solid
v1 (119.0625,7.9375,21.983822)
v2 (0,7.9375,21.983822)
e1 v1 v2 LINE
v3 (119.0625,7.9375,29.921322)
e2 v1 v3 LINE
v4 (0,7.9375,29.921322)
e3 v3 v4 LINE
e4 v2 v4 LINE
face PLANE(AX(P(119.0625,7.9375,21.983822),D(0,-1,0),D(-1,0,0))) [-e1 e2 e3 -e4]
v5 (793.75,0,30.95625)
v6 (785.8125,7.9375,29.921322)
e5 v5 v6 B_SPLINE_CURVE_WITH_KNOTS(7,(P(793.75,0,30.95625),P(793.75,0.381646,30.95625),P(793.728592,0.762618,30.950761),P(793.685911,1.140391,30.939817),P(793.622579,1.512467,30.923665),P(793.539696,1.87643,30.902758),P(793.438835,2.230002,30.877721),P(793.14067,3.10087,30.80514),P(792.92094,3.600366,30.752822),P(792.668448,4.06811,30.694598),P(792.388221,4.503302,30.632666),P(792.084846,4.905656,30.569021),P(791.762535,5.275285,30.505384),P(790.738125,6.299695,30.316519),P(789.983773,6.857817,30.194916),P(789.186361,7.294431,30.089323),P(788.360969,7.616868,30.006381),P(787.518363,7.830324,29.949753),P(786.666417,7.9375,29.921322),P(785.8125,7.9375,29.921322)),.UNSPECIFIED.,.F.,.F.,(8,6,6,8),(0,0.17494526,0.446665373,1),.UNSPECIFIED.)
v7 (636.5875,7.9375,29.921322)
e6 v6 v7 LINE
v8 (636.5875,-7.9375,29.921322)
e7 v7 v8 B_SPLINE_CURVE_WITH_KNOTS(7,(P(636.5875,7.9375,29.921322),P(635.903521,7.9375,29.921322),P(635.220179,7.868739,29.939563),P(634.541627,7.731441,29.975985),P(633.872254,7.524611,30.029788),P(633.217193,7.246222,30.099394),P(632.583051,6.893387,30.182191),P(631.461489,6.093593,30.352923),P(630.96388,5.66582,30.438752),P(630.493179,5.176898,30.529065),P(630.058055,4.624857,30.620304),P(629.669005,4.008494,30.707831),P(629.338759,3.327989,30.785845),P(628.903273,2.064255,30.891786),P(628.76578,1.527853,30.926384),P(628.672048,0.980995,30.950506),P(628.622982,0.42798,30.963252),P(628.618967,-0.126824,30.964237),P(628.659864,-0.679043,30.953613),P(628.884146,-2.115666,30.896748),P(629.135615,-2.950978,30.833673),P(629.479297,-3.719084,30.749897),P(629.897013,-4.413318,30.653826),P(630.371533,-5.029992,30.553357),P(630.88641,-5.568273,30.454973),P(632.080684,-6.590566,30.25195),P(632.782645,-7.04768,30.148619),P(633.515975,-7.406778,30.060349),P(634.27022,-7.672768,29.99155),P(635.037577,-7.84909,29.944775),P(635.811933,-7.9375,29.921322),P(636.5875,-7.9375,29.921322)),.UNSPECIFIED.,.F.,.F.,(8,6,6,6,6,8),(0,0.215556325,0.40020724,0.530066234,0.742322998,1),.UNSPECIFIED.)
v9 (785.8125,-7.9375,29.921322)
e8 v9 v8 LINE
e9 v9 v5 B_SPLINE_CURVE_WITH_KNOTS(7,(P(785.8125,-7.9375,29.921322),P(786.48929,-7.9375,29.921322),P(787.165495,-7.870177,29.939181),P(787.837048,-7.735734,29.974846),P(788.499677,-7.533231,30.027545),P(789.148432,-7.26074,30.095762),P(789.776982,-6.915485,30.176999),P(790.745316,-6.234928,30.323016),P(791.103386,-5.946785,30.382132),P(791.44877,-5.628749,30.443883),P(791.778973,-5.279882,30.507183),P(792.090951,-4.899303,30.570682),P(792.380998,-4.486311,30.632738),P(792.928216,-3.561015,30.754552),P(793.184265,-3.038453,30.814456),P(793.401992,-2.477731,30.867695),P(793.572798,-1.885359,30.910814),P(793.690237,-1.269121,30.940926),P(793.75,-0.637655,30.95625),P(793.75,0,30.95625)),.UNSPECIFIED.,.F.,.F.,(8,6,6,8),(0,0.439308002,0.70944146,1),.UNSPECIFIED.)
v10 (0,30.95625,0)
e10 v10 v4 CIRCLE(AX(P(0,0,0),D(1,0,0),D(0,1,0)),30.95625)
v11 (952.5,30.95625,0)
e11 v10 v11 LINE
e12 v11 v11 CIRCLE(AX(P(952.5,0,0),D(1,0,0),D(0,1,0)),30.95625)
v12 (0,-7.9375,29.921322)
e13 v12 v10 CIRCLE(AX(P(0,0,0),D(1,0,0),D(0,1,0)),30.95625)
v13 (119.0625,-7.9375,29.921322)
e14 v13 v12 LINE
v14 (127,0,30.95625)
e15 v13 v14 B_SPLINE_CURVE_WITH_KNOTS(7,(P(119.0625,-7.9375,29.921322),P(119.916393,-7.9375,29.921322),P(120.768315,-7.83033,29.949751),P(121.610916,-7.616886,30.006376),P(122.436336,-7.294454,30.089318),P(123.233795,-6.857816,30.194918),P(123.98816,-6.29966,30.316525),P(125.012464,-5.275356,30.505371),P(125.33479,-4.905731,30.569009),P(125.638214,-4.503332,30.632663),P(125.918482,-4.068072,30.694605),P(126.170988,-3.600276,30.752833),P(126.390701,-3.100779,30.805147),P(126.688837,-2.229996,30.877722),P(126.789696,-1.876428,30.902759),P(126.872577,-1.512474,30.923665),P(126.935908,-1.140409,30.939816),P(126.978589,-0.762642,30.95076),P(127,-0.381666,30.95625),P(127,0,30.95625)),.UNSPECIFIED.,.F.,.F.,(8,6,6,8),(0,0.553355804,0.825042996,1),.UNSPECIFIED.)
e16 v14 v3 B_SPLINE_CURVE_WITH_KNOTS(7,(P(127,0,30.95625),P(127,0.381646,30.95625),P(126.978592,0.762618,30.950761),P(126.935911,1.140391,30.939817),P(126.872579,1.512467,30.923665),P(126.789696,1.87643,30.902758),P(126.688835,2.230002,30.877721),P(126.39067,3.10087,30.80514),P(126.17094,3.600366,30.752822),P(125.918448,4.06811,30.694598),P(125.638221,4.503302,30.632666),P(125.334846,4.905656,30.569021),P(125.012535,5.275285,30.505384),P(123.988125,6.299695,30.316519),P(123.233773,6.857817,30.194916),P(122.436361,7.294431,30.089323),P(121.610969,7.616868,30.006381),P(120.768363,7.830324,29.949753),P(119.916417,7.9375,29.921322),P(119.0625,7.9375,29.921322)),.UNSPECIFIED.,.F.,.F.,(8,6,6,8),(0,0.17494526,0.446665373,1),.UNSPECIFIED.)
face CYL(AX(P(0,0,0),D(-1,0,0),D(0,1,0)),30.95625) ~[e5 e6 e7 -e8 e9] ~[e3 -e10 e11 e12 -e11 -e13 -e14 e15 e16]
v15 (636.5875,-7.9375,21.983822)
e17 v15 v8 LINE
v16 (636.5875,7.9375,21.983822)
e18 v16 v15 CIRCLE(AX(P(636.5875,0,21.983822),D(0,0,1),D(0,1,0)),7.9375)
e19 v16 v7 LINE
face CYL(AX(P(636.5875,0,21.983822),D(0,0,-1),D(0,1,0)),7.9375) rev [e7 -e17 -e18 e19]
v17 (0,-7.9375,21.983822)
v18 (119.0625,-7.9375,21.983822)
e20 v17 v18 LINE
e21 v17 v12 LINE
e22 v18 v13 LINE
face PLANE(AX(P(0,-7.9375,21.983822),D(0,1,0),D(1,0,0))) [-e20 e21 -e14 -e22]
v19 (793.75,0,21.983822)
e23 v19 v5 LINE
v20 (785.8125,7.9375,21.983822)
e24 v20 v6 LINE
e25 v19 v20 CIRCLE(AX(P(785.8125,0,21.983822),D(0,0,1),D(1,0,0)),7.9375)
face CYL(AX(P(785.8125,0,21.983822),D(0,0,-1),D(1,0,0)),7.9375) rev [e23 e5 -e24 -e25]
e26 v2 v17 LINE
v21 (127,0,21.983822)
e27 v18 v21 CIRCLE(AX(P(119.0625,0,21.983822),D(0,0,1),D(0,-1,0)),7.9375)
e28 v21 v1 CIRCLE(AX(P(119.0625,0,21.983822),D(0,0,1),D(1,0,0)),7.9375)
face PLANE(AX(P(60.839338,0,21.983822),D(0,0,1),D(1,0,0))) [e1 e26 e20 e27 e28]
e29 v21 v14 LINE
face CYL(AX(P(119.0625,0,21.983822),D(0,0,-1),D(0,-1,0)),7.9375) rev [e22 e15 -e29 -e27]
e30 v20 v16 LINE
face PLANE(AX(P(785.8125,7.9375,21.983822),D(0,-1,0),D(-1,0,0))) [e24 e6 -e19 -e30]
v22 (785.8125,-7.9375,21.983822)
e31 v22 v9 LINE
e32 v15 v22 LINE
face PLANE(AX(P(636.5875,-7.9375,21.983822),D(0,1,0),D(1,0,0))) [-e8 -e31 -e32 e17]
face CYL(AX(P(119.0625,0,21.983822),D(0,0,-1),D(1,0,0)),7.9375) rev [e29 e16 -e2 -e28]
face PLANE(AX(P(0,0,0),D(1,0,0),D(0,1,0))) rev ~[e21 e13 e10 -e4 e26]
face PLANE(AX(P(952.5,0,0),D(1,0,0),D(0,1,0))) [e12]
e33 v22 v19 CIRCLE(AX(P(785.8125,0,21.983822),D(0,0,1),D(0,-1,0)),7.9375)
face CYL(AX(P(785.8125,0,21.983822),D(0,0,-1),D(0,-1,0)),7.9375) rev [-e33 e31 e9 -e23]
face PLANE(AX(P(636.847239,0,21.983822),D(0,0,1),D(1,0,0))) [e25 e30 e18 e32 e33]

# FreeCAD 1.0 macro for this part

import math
import FreeCAD as App
import Part
import Sketcher
Q = App.Units.Quantity

doc = App.newDocument("Part")
body = doc.addObject("PartDesign::Body", "Body")

sketch1 = body.newObject("Sketcher::SketchObject", "Sketch")
sketch1.AttachmentSupport = (doc.getObject("YZ_Plane"), [""])
sketch1.MapMode = "FlatFace"
sketch1.addGeometry(Part.Circle(App.Vector(0, 0, 0), App.Vector(0, 0, 1), 30.95625), False)
sketch1.addConstraint([
    Sketcher.Constraint("Coincident", 0, 3, -1, 1),
    Sketcher.Constraint("Diameter", 0, Q("2.4375 in")),
])
pad1 = body.newObject("PartDesign::Pad", "Pad")
pad1.Profile = sketch1
pad1.Length = Q("37.5 in")

sketch2 = body.newObject("Sketcher::SketchObject", "Sketch001")
sketch2.AttachmentSupport = (doc.getObject("XY_Plane"), [""])
sketch2.MapMode = "FlatFace"
sketch2.AttachmentOffset = App.Placement(App.Vector(0, 0, 21.983822), App.Rotation())
sketch2.addGeometry([
    Part.LineSegment(App.Vector(0, 7.9375, 0), App.Vector(0, -7.9375, 0)),
    Part.LineSegment(App.Vector(0, -7.9375, 0), App.Vector(119.0625, -7.9375, 0)),
    Part.ArcOfCircle(Part.Circle(App.Vector(119.0625, 0, 0), App.Vector(0, 0, 1), 7.9375), math.radians(-90), math.radians(0)),
    Part.ArcOfCircle(Part.Circle(App.Vector(119.0625, 0, 0), App.Vector(0, 0, 1), 7.9375), math.radians(0), math.radians(90)),
    Part.LineSegment(App.Vector(119.0625, 7.9375, 0), App.Vector(0, 7.9375, 0)),
    Part.ArcOfCircle(Part.Circle(App.Vector(636.5875, 0, 0), App.Vector(0, 0, 1), 7.9375), math.radians(90), math.radians(270)),
    Part.LineSegment(App.Vector(636.5875, -7.9375, 0), App.Vector(785.8125, -7.9375, 0)),
    Part.ArcOfCircle(Part.Circle(App.Vector(785.8125, 0, 0), App.Vector(0, 0, 1), 7.9375), math.radians(-90), math.radians(0)),
    Part.ArcOfCircle(Part.Circle(App.Vector(785.8125, 0, 0), App.Vector(0, 0, 1), 7.9375), math.radians(0), math.radians(90)),
    Part.LineSegment(App.Vector(785.8125, 7.9375, 0), App.Vector(636.5875, 7.9375, 0)),
], False)
sketch2.addConstraint([
    Sketcher.Constraint("Coincident", 0, 2, 1, 1),
    Sketcher.Constraint("Tangent", 1, 2, 2, 1),
    Sketcher.Constraint("Tangent", 2, 2, 3, 1),
    Sketcher.Constraint("Tangent", 3, 2, 4, 1),
    Sketcher.Constraint("Coincident", 4, 2, 0, 1),
    Sketcher.Constraint("Tangent", 5, 2, 6, 1),
    Sketcher.Constraint("Tangent", 6, 2, 7, 1),
    Sketcher.Constraint("Tangent", 7, 2, 8, 1),
    Sketcher.Constraint("Tangent", 8, 2, 9, 1),
    Sketcher.Constraint("Tangent", 9, 2, 5, 1),
    Sketcher.Constraint("Vertical", 0),
    Sketcher.Constraint("Horizontal", 1),
    Sketcher.Constraint("Horizontal", 4),
    Sketcher.Constraint("Horizontal", 6),
    Sketcher.Constraint("Horizontal", 9),
    Sketcher.Constraint("Equal", 2, 3),
    Sketcher.Constraint("Equal", 3, 5),
    Sketcher.Constraint("Equal", 5, 7),
    Sketcher.Constraint("Symmetric", 0, 2, 4, 2, -1, 1),
    Sketcher.Constraint("PointOnObject", 5, 3, -1),
    Sketcher.Constraint("PointOnObject", 2, 2, -1),
    Sketcher.Constraint("PointOnObject", 7, 2, -1),
    Sketcher.Constraint("DistanceX", -1, 1, 2, 2, Q("5 in")),
    Sketcher.Constraint("Radius", 2, Q("0.3125 in")),
    Sketcher.Constraint("DistanceX", 6, 1, 6, 2, Q("5.875 in")),
    Sketcher.Constraint("DistanceX", -1, 1, 7, 2, Q("31.25 in")),
])
pocket1 = body.newObject("PartDesign::Pocket", "Pocket")
pocket1.Profile = sketch2
pocket1.Length = 9.972428
pocket1.Reversed = True

doc.recompute()
